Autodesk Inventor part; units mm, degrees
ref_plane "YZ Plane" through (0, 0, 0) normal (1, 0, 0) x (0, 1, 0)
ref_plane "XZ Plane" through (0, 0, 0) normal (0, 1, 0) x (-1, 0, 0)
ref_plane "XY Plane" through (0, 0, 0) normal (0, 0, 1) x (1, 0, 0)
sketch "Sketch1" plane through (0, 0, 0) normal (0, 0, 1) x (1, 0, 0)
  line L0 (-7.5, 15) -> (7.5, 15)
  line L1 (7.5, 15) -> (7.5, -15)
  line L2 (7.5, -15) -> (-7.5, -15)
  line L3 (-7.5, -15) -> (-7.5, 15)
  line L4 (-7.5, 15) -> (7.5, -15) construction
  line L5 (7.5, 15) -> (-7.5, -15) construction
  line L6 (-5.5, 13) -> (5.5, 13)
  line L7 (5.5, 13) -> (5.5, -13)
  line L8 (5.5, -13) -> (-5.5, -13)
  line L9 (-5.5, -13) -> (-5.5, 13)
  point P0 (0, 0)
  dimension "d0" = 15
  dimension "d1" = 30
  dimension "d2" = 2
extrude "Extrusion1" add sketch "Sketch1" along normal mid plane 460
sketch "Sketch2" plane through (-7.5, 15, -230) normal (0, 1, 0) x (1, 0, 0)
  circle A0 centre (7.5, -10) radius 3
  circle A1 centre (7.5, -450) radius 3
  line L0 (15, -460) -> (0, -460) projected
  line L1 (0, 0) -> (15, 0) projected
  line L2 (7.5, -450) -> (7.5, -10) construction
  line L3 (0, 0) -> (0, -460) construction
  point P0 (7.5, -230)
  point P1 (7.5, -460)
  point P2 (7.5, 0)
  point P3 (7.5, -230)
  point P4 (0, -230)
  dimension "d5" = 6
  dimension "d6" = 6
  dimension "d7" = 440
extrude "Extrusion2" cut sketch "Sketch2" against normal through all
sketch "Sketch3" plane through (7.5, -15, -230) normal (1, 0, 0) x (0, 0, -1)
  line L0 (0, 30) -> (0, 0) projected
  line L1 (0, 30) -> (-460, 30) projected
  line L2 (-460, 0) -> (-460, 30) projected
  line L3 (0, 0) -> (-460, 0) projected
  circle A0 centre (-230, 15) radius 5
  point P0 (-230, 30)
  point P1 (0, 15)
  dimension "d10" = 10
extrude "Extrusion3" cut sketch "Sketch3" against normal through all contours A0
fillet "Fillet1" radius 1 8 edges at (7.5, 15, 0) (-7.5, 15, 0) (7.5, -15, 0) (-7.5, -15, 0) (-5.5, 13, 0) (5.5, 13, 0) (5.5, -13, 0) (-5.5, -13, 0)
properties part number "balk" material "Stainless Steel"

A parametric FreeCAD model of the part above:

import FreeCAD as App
import Part
import Sketcher

V = App.Vector


def edges_at(feature, points):
    """Names of the edges that pass closest to the given points."""
    edges = feature.Shape.Edges
    near = lambda p: min(range(len(edges)), key=lambda i: edges[i].distToShape(Part.Vertex(*p))[0])
    return sorted({f"Edge{near(p) + 1}" for p in points})

doc = App.newDocument("Part")
params = doc.addObject("Spreadsheet::Sheet", "Params")
for row, (alias, value) in enumerate([
    ("sketch1_width", "15 mm"),
    ("sketch1_height", "30 mm"),
    ("pad1_length", "460 mm"),
    ("sketch2_diameter", "6 mm"),
    ("sketch3_diameter", "10 mm"),
    ("fillet_radius", "1 mm"),
], start=1):
    params.set(f"A{row}", alias)
    params.set(f"B{row}", "=" + value)
    params.setAlias(f"B{row}", alias)

body = doc.addObject("PartDesign::Body", "Body")

# Sketch on XY plane
sketch1 = doc.addObject("Sketcher::SketchObject", "Sketch")
body.addObject(sketch1)
sketch1.AttachmentSupport = (doc.XY_Plane, [""])
sketch1.MapMode = "FlatFace"
sketch1.addGeometry([
    Part.LineSegment(V(8, 15, 0), V(-8, 15, 0)),  # 0
    Part.LineSegment(V(-8, 15, 0), V(-8, -15, 0)),  # 1
    Part.LineSegment(V(-8, -15, 0), V(8, -15, 0)),  # 2
    Part.LineSegment(V(8, -15, 0), V(8, 15, 0)),  # 3
    Part.LineSegment(V(-6, -13, 0), V(-6, 13, 0)),  # 4
    Part.LineSegment(V(-6, 13, 0), V(6, 13, 0)),  # 5
    Part.LineSegment(V(6, 13, 0), V(6, -13, 0)),  # 6
    Part.LineSegment(V(6, -13, 0), V(-6, -13, 0)),  # 7
], False)
sketch1.addConstraint([
    Sketcher.Constraint("Coincident", 0, 2, 1, 1),
    Sketcher.Constraint("Coincident", 1, 2, 2, 1),
    Sketcher.Constraint("Coincident", 2, 2, 3, 1),
    Sketcher.Constraint("Coincident", 3, 2, 0, 1),
    Sketcher.Constraint("Coincident", 4, 2, 5, 1),
    Sketcher.Constraint("Coincident", 5, 2, 6, 1),
    Sketcher.Constraint("Coincident", 6, 2, 7, 1),
    Sketcher.Constraint("Coincident", 7, 2, 4, 1),
    Sketcher.Constraint("Horizontal", 0),
    Sketcher.Constraint("Vertical", 1),
    Sketcher.Constraint("Horizontal", 2),
    Sketcher.Constraint("Vertical", 3),
    Sketcher.Constraint("Vertical", 4),
    Sketcher.Constraint("Horizontal", 5),
    Sketcher.Constraint("Vertical", 6),
    Sketcher.Constraint("Horizontal", 7),
    Sketcher.Constraint("Symmetric", 0, 2, 2, 2, -1, 1),
    Sketcher.Constraint("Symmetric", 4, 2, 6, 2, -1, 1),
    Sketcher.Constraint("DistanceX", 0, 2, 0, 1, 15.0),
    Sketcher.Constraint("DistanceY", 1, 2, 1, 1, 30.0),
    Sketcher.Constraint("DistanceX", 0, 2, 4, 2, 2.0),
    Sketcher.Constraint("DistanceY", 4, 2, 0, 2, 2.0),
])
sketch1.setExpression("Constraints[18]", "Params.sketch1_width")
sketch1.setExpression("Constraints[19]", "Params.sketch1_height")
pad1 = doc.addObject("PartDesign::Pad", "Pad")
body.addObject(pad1)
pad1.Profile = sketch1
pad1.setExpression("Length", "Params.pad1_length")
pad1.Midplane = True

# Sketch on XZ plane
sketch2 = doc.addObject("Sketcher::SketchObject", "Sketch001")
body.addObject(sketch2)
sketch2.AttachmentSupport = (doc.XZ_Plane, [""])
sketch2.MapMode = "FlatFace"
sketch2.AttachmentOffset = App.Placement(V(0, 0, -15), App.Rotation())
sketch2.addGeometry([
    Part.Circle(V(0, -220, 0), V(0, 0, 1), 3),
    Part.Circle(V(0, 220, 0), V(0, 0, 1), 3),
], False)
sketch2.addConstraint([
    Sketcher.Constraint("Equal", 0, 1),
    Sketcher.Constraint("Symmetric", 0, 3, 1, 3, -1, 1),
    Sketcher.Constraint("PointOnObject", 0, 3, -2),
    Sketcher.Constraint("Diameter", 0, 6.0),
    Sketcher.Constraint("DistanceY", 0, 3, 1, 3, 440.0),
])
sketch2.setExpression("Constraints[3]", "Params.sketch2_diameter")
pocket1 = doc.addObject("PartDesign::Pocket", "Pocket")
body.addObject(pocket1)
pocket1.Profile = sketch2
pocket1.Type = "ThroughAll"
pocket1.Reversed = True

# Sketch on YZ plane
sketch3 = doc.addObject("Sketcher::SketchObject", "Sketch002")
body.addObject(sketch3)
sketch3.AttachmentSupport = (doc.YZ_Plane, [""])
sketch3.MapMode = "FlatFace"
sketch3.AttachmentOffset = App.Placement(V(0, 0, 7.5), App.Rotation())
sketch3.addGeometry(Part.Circle(V(0, 0, 0), V(0, 0, 1), 5), False)
sketch3.addConstraint([
    Sketcher.Constraint("Coincident", 0, 3, -1, 1),
    Sketcher.Constraint("Diameter", 0, 10.0),
])
sketch3.setExpression("Constraints[1]", "Params.sketch3_diameter")
pocket2 = doc.addObject("PartDesign::Pocket", "Pocket001")
body.addObject(pocket2)
pocket2.Profile = sketch3
pocket2.Type = "ThroughAll"
doc.recompute()

fillet = doc.addObject("PartDesign::Fillet", "Fillet")
body.addObject(fillet)
fillet.Base = (pocket2, edges_at(pocket2, [
    (7.5, 15, 0),
    (-7.5, 15, 0),
    (7.5, -15, 0),
    (-7.5, -15, 0),
    (-5.5, 13, 0),
    (5.5, 13, 0),
    (5.5, -13, 0),
    (-5.5, -13, 0),
]))
fillet.setExpression("Radius", "Params.fillet_radius")

doc.recompute()
